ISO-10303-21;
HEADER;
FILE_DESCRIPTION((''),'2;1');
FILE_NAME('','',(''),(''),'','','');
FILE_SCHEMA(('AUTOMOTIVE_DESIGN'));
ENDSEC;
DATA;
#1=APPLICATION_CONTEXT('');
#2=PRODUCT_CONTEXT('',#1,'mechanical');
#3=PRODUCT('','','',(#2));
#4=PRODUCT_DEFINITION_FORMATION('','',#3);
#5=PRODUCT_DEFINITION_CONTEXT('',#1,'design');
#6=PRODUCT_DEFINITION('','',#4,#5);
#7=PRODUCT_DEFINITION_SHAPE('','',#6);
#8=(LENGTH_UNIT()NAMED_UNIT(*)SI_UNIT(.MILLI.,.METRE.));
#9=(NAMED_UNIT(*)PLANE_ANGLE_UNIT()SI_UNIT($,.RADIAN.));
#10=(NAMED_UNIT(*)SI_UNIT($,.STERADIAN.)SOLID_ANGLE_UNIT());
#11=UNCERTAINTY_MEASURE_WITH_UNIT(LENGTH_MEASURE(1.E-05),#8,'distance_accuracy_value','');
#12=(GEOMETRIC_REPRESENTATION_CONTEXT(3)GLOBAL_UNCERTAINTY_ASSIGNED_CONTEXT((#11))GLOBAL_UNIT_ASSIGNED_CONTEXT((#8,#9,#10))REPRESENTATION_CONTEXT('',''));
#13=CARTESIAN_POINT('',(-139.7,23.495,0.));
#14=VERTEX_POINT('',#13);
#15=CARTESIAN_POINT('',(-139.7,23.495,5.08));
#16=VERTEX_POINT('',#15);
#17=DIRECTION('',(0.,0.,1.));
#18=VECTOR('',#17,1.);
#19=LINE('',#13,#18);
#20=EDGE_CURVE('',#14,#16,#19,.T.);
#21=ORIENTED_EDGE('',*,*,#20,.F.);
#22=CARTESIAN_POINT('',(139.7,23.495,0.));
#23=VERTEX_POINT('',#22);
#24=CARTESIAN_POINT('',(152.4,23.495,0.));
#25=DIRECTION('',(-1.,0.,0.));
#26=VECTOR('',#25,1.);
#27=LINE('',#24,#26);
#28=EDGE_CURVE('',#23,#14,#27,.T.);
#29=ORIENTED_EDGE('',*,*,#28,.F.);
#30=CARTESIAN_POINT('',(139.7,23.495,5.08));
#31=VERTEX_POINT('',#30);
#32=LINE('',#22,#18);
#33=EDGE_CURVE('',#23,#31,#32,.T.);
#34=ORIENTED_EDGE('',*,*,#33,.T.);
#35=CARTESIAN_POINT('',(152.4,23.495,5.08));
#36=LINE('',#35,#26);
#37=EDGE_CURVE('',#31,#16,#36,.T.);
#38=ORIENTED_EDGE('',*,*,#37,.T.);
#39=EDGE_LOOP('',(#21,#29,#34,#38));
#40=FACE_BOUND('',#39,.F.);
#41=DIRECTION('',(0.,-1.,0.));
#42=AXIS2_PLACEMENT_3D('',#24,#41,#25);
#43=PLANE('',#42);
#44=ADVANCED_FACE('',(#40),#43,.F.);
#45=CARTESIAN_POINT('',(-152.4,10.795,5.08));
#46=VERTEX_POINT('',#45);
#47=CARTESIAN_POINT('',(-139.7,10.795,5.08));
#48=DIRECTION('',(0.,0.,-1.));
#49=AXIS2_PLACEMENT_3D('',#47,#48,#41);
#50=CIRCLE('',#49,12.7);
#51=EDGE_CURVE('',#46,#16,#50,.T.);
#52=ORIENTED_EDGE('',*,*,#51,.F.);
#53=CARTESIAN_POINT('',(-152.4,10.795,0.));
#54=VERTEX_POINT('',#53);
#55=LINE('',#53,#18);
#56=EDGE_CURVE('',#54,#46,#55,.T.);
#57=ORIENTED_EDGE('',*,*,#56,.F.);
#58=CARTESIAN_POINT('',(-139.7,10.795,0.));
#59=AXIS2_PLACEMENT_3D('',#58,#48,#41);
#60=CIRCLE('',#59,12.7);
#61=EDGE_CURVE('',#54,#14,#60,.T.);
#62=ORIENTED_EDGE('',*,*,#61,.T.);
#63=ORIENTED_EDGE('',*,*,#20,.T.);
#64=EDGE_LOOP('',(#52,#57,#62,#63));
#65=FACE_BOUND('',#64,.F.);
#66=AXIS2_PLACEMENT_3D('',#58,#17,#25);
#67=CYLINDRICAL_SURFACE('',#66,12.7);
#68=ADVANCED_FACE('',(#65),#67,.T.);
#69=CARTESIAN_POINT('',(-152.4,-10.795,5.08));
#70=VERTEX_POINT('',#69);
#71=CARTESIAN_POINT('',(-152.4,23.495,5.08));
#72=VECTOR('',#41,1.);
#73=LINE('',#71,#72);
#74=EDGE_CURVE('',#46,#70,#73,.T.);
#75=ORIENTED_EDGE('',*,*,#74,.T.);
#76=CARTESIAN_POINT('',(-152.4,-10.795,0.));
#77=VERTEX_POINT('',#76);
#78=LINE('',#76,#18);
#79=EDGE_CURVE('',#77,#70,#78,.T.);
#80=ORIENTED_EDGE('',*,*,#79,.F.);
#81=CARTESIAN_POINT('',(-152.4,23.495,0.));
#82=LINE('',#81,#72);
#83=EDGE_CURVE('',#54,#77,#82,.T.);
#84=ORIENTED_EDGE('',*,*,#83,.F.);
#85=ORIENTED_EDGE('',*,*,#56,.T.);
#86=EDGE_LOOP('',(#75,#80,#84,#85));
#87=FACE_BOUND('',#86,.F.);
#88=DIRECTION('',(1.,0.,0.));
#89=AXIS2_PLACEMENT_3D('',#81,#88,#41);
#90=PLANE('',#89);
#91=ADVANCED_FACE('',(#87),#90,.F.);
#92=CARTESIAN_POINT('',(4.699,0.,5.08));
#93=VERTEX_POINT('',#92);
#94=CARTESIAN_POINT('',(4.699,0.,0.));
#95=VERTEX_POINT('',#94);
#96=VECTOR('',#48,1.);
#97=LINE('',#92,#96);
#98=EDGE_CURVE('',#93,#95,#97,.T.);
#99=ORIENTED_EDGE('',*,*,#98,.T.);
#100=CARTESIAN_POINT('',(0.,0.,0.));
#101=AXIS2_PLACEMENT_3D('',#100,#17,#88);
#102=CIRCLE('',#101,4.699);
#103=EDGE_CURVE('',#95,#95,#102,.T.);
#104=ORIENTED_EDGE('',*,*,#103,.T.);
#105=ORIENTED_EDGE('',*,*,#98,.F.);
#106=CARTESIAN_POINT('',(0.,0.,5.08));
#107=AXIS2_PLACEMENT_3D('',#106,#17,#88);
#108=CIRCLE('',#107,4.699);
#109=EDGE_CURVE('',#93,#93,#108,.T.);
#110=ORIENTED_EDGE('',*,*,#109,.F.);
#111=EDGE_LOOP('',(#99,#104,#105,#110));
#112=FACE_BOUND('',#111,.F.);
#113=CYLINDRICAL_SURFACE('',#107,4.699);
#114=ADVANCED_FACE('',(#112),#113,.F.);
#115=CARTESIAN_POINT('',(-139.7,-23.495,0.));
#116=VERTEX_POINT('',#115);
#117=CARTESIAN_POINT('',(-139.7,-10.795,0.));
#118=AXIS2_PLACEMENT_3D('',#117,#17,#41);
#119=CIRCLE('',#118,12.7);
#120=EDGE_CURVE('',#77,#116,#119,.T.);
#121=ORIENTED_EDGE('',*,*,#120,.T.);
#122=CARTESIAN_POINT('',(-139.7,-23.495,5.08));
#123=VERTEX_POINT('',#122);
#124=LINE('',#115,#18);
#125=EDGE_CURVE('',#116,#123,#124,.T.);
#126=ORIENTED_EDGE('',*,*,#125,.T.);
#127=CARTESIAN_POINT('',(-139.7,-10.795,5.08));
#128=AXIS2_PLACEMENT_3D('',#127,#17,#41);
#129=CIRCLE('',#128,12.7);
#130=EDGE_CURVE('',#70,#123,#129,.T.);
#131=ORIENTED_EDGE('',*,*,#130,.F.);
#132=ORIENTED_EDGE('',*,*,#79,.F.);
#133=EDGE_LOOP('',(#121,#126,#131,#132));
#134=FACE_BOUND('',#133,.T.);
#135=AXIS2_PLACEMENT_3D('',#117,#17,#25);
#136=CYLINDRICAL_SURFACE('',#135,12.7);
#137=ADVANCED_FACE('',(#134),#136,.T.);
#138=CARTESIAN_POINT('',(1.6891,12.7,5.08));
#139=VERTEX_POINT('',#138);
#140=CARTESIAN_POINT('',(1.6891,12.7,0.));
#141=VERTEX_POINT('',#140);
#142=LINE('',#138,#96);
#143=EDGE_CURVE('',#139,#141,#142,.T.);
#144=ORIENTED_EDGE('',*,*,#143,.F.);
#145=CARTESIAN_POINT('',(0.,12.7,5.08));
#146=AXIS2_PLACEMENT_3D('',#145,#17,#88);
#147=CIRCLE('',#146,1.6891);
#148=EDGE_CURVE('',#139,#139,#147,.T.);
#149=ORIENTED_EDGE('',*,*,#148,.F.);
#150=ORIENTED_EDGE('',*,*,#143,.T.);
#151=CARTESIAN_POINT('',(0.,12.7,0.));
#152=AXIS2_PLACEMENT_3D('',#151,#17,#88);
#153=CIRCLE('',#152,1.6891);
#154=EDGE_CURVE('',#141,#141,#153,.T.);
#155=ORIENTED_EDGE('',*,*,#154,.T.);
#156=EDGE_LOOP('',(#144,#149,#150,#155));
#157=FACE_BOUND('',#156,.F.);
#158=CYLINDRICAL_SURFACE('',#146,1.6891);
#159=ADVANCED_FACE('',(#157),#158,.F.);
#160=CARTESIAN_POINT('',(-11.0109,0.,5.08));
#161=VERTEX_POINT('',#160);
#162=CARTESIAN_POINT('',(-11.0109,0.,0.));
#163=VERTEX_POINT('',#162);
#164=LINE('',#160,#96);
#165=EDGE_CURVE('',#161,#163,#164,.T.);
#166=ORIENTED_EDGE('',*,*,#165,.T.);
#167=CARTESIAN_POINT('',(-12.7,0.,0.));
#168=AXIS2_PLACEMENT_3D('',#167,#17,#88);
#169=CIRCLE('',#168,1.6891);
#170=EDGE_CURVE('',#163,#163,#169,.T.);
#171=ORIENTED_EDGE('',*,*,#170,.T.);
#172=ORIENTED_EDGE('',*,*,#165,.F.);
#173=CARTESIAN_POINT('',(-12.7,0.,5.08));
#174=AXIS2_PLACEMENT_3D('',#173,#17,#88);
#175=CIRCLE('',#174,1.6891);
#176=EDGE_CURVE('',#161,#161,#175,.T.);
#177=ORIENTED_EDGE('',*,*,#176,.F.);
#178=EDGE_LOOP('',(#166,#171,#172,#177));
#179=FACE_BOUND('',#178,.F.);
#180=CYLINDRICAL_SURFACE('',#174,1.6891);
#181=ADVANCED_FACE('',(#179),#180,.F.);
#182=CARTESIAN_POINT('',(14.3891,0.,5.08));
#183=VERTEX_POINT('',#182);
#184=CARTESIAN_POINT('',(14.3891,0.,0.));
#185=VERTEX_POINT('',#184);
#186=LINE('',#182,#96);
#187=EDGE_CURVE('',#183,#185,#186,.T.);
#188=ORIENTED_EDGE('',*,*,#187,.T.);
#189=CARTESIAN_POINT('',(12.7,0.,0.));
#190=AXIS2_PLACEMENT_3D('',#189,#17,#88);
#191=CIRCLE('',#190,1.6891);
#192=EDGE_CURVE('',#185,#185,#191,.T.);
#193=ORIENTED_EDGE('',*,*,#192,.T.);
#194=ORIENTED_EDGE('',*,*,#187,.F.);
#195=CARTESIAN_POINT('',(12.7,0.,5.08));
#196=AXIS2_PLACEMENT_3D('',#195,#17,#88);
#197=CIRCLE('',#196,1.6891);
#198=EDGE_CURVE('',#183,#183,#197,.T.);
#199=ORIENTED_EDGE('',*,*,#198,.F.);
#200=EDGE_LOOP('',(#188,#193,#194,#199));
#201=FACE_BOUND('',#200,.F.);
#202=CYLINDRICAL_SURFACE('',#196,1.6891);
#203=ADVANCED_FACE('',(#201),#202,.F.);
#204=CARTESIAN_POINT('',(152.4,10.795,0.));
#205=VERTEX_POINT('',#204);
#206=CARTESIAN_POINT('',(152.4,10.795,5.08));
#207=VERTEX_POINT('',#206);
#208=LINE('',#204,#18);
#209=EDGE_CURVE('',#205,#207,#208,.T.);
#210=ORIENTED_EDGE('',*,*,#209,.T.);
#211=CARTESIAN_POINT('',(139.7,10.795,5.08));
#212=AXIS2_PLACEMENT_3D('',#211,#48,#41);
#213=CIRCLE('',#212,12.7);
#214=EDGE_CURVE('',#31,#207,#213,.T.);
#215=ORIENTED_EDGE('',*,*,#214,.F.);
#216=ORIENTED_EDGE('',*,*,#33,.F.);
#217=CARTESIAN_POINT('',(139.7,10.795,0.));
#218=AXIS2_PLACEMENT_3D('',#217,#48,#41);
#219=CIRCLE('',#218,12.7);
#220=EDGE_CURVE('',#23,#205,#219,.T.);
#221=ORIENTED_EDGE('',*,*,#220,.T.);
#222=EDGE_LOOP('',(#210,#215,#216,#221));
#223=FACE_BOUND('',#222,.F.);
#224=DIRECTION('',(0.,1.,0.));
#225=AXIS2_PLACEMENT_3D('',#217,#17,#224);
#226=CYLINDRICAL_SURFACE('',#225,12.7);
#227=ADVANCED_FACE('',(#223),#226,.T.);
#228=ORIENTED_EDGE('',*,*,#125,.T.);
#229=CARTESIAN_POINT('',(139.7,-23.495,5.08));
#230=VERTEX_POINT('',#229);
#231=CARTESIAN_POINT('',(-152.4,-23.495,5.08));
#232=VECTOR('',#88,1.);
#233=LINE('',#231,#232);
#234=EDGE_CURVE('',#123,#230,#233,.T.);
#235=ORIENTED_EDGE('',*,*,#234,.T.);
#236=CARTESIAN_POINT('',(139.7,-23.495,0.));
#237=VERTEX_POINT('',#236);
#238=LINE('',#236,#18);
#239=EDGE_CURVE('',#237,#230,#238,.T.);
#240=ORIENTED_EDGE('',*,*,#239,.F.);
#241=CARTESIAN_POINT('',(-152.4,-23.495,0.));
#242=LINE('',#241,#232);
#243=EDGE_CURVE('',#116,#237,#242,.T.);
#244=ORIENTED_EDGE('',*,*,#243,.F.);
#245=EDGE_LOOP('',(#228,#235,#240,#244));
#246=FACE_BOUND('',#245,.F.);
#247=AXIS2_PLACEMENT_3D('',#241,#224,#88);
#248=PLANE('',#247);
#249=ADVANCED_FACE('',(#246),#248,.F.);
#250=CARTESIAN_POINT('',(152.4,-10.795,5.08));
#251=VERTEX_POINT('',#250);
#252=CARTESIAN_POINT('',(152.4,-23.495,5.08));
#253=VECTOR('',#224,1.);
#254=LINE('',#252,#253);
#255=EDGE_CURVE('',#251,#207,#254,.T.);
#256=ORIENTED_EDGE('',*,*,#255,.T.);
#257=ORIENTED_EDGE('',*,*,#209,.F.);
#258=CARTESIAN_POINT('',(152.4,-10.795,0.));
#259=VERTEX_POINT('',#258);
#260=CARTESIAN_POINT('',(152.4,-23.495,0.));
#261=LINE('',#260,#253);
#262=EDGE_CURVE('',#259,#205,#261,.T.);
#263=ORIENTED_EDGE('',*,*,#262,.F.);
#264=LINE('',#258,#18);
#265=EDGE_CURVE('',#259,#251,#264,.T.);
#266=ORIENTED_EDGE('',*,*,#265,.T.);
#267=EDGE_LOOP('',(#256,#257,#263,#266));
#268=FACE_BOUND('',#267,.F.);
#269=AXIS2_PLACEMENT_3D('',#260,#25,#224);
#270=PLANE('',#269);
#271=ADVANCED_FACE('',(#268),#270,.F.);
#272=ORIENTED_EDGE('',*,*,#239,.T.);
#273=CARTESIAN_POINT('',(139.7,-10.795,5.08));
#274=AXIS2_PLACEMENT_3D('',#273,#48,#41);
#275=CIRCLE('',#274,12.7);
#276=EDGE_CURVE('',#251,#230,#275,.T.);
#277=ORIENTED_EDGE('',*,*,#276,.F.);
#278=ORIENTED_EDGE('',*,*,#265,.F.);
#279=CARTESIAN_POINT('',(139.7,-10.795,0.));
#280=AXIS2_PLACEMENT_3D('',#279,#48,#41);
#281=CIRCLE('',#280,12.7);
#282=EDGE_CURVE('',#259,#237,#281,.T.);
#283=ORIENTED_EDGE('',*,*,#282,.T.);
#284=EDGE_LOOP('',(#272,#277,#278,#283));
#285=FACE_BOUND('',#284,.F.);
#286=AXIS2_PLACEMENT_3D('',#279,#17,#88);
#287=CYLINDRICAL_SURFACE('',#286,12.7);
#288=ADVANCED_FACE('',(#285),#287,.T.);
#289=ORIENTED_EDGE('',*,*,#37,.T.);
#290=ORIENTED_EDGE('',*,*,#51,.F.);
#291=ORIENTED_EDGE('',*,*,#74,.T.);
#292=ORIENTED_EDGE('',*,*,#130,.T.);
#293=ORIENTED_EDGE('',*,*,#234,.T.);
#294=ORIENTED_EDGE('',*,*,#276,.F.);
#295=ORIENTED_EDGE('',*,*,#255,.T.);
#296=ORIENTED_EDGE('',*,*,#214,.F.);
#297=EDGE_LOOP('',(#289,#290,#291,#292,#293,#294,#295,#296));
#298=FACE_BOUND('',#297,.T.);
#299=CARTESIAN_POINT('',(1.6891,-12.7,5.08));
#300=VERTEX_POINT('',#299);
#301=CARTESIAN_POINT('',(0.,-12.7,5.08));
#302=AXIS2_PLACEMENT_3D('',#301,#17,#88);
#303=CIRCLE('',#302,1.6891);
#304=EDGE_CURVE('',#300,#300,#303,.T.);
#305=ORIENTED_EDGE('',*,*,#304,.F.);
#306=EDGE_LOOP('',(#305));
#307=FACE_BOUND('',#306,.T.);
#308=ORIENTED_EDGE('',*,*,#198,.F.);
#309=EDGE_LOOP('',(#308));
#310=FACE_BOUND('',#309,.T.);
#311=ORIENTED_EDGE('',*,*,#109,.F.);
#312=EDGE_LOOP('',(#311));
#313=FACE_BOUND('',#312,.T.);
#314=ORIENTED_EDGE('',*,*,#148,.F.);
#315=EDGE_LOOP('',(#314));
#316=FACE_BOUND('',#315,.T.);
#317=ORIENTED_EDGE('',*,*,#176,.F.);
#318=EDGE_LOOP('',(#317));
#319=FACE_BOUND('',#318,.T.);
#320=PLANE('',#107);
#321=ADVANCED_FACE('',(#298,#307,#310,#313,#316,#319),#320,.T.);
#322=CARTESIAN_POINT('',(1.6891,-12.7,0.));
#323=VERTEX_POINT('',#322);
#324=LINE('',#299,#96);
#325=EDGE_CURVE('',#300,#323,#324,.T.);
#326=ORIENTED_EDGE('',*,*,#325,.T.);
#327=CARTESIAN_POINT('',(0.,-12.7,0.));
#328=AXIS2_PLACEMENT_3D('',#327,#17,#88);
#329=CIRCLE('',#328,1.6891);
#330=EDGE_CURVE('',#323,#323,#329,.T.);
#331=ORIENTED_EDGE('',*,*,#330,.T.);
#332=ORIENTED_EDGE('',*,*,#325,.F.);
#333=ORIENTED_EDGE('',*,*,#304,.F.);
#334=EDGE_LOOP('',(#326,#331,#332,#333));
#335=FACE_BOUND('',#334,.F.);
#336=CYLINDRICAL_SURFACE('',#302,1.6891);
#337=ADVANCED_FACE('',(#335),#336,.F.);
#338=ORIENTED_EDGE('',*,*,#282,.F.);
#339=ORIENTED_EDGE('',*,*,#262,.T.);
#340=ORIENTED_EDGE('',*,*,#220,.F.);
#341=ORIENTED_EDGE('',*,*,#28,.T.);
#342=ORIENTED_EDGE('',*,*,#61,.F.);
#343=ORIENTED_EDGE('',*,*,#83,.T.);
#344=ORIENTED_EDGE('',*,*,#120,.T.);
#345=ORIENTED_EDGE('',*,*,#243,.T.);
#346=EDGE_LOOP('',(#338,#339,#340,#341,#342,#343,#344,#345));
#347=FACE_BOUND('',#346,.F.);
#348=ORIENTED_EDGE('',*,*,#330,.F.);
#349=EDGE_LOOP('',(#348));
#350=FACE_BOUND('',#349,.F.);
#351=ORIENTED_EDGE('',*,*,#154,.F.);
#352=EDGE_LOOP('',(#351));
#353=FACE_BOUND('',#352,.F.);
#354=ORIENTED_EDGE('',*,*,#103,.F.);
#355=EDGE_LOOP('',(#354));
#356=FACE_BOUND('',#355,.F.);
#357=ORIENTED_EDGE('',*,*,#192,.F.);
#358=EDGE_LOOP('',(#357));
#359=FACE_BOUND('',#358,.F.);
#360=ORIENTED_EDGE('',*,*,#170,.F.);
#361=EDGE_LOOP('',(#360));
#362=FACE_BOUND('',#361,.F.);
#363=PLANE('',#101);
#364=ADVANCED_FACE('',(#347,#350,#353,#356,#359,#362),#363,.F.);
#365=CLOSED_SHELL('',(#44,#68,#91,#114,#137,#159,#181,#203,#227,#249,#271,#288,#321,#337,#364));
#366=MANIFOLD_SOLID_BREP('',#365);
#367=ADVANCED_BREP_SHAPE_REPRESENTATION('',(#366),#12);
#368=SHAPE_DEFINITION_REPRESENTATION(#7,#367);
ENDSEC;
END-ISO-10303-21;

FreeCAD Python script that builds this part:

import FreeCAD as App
import Part
import Sketcher
Q = App.Units.Quantity


def edges_at(feature, points):
    """Names of the edges that pass closest to the given points."""
    edges = feature.Shape.Edges
    near = lambda p: min(range(len(edges)), key=lambda i: edges[i].distToShape(Part.Vertex(*p))[0])
    return sorted({f"Edge{near(p) + 1}" for p in points})

doc = App.newDocument("Part")
body = doc.addObject("PartDesign::Body", "Body")

# Sketch on XY plane
sketch1 = doc.addObject("Sketcher::SketchObject", "Sketch")
body.addObject(sketch1)
sketch1.AttachmentSupport = (doc.XY_Plane, [""])
sketch1.MapMode = "FlatFace"
sketch1.addGeometry([
    Part.LineSegment(App.Vector(-152, 23, 0), App.Vector(-152, -23, 0)),
    Part.LineSegment(App.Vector(-152, -23, 0), App.Vector(152, -23, 0)),
    Part.LineSegment(App.Vector(152, -23, 0), App.Vector(152, 23, 0)),
    Part.LineSegment(App.Vector(152, 23, 0), App.Vector(-152, 23, 0)),
], False)
sketch1.addConstraint([
    Sketcher.Constraint("Coincident", 0, 2, 1, 1),
    Sketcher.Constraint("Coincident", 1, 2, 2, 1),
    Sketcher.Constraint("Coincident", 2, 2, 3, 1),
    Sketcher.Constraint("Coincident", 3, 2, 0, 1),
    Sketcher.Constraint("Vertical", 0),
    Sketcher.Constraint("Horizontal", 1),
    Sketcher.Constraint("Vertical", 2),
    Sketcher.Constraint("Horizontal", 3),
    Sketcher.Constraint("Symmetric", 0, 2, 2, 2, -1, 1),
    Sketcher.Constraint("DistanceX", 1, 1, 1, 2, Q("12 in")),
    Sketcher.Constraint("DistanceY", 0, 2, 0, 1, Q("1.85 in")),
])
pad1 = doc.addObject("PartDesign::Pad", "Pad")
body.addObject(pad1)
pad1.Profile = sketch1
pad1.Length = Q("0.2 in")
doc.recompute()

fillet = doc.addObject("PartDesign::Fillet", "Fillet")
body.addObject(fillet)
fillet.Base = (pad1, edges_at(pad1, [
    (152.4, 23.495, 2.54),
    (152.4, -23.495, 2.54),
    (-152.4, 23.495, 2.54),
    (-152.4, -23.495, 2.54),
]))
fillet.Radius = Q("0.5 in")

# Sketch on XY plane
sketch2 = doc.addObject("Sketcher::SketchObject", "Sketch001")
body.addObject(sketch2)
sketch2.AttachmentSupport = (doc.XY_Plane, [""])
sketch2.MapMode = "FlatFace"
sketch2.AttachmentOffset = App.Placement(App.Vector(0, 0, 0.2 * 25.4), App.Rotation())
sketch2.addGeometry([
    Part.Circle(App.Vector(0, 12.7, 0), App.Vector(0, 0, 1), 1.7),  # 0
    Part.Circle(App.Vector(0, -12.7, 0), App.Vector(0, 0, 1), 1.7),  # 1
    Part.Circle(App.Vector(12.7, 0, 0), App.Vector(0, 0, 1), 1.7),  # 2
    Part.Circle(App.Vector(-12.7, 0, 0), App.Vector(0, 0, 1), 1.7),  # 3
    Part.Circle(App.Vector(0, 0, 0), App.Vector(0, 0, 1), 4.7),  # 4
], False)
sketch2.addConstraint([
    Sketcher.Constraint("Coincident", 4, 3, -1, 1),
    Sketcher.Constraint("Equal", 0, 1),
    Sketcher.Constraint("Equal", 1, 2),
    Sketcher.Constraint("Equal", 2, 3),
    Sketcher.Constraint("Symmetric", 0, 3, 1, 3, -1, 1),
    Sketcher.Constraint("Symmetric", 2, 3, 3, 3, -1, 1),
    Sketcher.Constraint("PointOnObject", 0, 3, -2),
    Sketcher.Constraint("PointOnObject", 2, 3, -1),
    Sketcher.Constraint("Diameter", 4, Q("0.37 in")),
    Sketcher.Constraint("Diameter", 0, Q("0.133 in")),
    Sketcher.Constraint("DistanceY", -1, 1, 0, 3, Q("0.5 in")),
    Sketcher.Constraint("DistanceX", -1, 1, 2, 3, Q("0.5 in")),
])
pocket1 = doc.addObject("PartDesign::Pocket", "Pocket")
body.addObject(pocket1)
pocket1.Profile = sketch2
pocket1.Length = Q("0.2 in")

doc.recompute()
